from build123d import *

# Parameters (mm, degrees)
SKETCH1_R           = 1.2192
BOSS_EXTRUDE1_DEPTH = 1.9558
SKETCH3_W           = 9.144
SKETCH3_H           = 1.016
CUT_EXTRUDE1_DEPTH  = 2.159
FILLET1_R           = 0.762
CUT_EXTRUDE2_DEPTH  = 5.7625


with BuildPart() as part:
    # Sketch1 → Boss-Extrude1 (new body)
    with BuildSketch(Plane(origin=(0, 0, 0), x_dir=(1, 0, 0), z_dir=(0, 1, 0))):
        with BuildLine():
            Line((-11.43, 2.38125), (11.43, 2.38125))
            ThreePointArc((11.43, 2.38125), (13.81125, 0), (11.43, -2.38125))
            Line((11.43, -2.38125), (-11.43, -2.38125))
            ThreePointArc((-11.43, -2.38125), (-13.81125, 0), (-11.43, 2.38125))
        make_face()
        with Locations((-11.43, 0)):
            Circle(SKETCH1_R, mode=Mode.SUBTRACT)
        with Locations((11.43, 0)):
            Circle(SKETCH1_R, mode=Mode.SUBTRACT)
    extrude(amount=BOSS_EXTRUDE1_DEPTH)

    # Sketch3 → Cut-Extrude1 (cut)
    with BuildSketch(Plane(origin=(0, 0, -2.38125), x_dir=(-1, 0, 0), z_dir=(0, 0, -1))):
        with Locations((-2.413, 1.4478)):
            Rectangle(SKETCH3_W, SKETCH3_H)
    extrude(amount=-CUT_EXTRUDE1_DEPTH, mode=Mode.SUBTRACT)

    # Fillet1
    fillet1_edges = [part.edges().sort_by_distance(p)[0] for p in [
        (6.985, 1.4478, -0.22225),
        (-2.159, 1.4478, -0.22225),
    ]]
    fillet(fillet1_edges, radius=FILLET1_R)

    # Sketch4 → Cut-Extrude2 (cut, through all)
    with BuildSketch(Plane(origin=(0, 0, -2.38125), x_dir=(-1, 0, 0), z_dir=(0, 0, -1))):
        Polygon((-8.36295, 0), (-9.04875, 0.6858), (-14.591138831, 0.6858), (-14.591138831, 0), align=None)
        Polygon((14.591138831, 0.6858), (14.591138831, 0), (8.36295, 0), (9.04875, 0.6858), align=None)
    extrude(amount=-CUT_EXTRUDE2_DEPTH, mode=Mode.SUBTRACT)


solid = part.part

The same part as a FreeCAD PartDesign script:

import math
import FreeCAD as App
import Part
import Sketcher

V = App.Vector
Q = App.Units.Quantity


def edges_at(feature, points):
    """Names of the edges that pass closest to the given points."""
    edges = feature.Shape.Edges
    near = lambda p: min(range(len(edges)), key=lambda i: edges[i].distToShape(Part.Vertex(*p))[0])
    return sorted({f"Edge{near(p) + 1}" for p in points})


def add_polygon(sketch, points):
    """Adds a closed chain of lines whose ends are joined by coincident constraints."""
    first, n = sketch.GeometryCount, len(points)
    for a, b in zip(points, points[1:] + points[:1]):
        sketch.addGeometry(Part.LineSegment(App.Vector(*a, 0), App.Vector(*b, 0)), False)
    for i in range(n):
        sketch.addConstraint(Sketcher.Constraint("Coincident", first + i, 2, first + (i + 1) % n, 1))

doc = App.newDocument("Part")
params = doc.addObject("Spreadsheet::Sheet", "Params")
for row, (alias, value) in enumerate([
    ("sketch1_diameter", "0.096 in"),
    ("sketch1_width", "0.9 in"),
    ("sketch1_radius", "0.09375 in"),
    ("pad1_length", "0.077 in"),
    ("sketch2_width", "0.36 in"),
    ("sketch2_height", "0.04 in"),
    ("pocket1_length", "0.085 in"),
    ("fillet_radius", "0.03 in"),
    ("sketch3_height", "0.027 in"),
], start=1):
    params.set(f"A{row}", alias)
    params.set(f"B{row}", "=" + value)
    params.setAlias(f"B{row}", alias)

body = doc.addObject("PartDesign::Body", "Body")

sketch1 = body.newObject("Sketcher::SketchObject", "Sketch")
sketch1.AttachmentSupport = (doc.getObject("XZ_Plane"), [""])
sketch1.MapMode = "FlatFace"
sketch1.addGeometry([
    Part.LineSegment(V(11.43, -2.38125, 0), V(-11.43, -2.38125, 0)),
    Part.ArcOfCircle(Part.Circle(V(-11.43, 0, 0), V(0, 0, 1), 2.38125), math.radians(90), math.radians(270)),
    Part.LineSegment(V(-11.43, 2.38125, 0), V(11.43, 2.38125, 0)),
    Part.ArcOfCircle(Part.Circle(V(11.43, 0, 0), V(0, 0, 1), 2.38125), math.radians(-90), math.radians(90)),
    Part.Circle(V(11.43, 0, 0), V(0, 0, 1), 1.2192),
    Part.Circle(V(-11.43, 0, 0), V(0, 0, 1), 1.2192),
], False)
sketch1.addConstraint([
    Sketcher.Constraint("Tangent", 0, 2, 1, 2),
    Sketcher.Constraint("Tangent", 1, 1, 2, 1),
    Sketcher.Constraint("Tangent", 2, 2, 3, 2),
    Sketcher.Constraint("Tangent", 3, 1, 0, 1),
    Sketcher.Constraint("Horizontal", 0),
    Sketcher.Constraint("Horizontal", 2),
    Sketcher.Constraint("Coincident", 4, 3, 3, 3),
    Sketcher.Constraint("Coincident", 5, 3, 1, 3),
    Sketcher.Constraint("Equal", 4, 5),
    Sketcher.Constraint("Symmetric", 1, 3, 3, 3, -1, 1),
    Sketcher.Constraint("Diameter", 4, Q("0.096 in")),
    Sketcher.Constraint("DistanceX", 0, 2, 0, 1, Q("0.9 in")),
    Sketcher.Constraint("Radius", 1, Q("0.09375 in")),
])
sketch1.setExpression("Constraints[10]", "Params.sketch1_diameter")
sketch1.setExpression("Constraints[11]", "Params.sketch1_width")
sketch1.setExpression("Constraints[12]", "Params.sketch1_radius")
pad1 = body.newObject("PartDesign::Pad", "Pad")
pad1.Profile = sketch1
pad1.setExpression("Length", "Params.pad1_length")
pad1.Reversed = True

sketch2 = body.newObject("Sketcher::SketchObject", "Sketch001")
sketch2.AttachmentSupport = (doc.getObject("XY_Plane"), [""])
sketch2.MapMode = "FlatFace"
sketch2.AttachmentOffset = App.Placement(V(0, 0, -0.09375 * 25.4), App.Rotation())
add_polygon(sketch2, [(6.985, 1.9558), (6.985, 0.9398), (-2.159, 0.9398), (-2.159, 1.9558)])
sketch2.addConstraint([
    Sketcher.Constraint("Vertical", 0),
    Sketcher.Constraint("Horizontal", 1),
    Sketcher.Constraint("Vertical", 2),
    Sketcher.Constraint("Horizontal", 3),
    Sketcher.Constraint("DistanceX", 1, 2, 1, 1, Q("0.36 in")),
    Sketcher.Constraint("DistanceY", 0, 2, 0, 1, Q("0.04 in")),
    Sketcher.Constraint("DistanceX", -1, 1, 0, 2, Q("0.275 in")),
    Sketcher.Constraint("DistanceY", -1, 1, 0, 2, Q("0.037 in")),
])
sketch2.setExpression("Constraints[8]", "Params.sketch2_width")
sketch2.setExpression("Constraints[9]", "Params.sketch2_height")
pocket1 = body.newObject("PartDesign::Pocket", "Pocket")
pocket1.Profile = sketch2
pocket1.setExpression("Length", "Params.pocket1_length")
pocket1.Reversed = True
doc.recompute()

fillet = body.newObject("PartDesign::Fillet", "Fillet")
fillet.Base = (pocket1, edges_at(pocket1, [(6.985, 1.448, -0.222), (-2.159, 1.448, -0.222)]))
fillet.setExpression("Radius", "Params.fillet_radius")

sketch3 = body.newObject("Sketcher::SketchObject", "Sketch002")
sketch3.AttachmentSupport = (doc.getObject("XY_Plane"), [""])
sketch3.MapMode = "FlatFace"
sketch3.AttachmentOffset = App.Placement(V(0, 0, -0.09375 * 25.4), App.Rotation())
add_polygon(sketch3, [(8.36295, 0), (9.04875, 0.6858), (14.591139, 0.6858), (14.591139, 0)])
add_polygon(sketch3, [(-14.591139, 0), (-14.591139, 0.6858), (-9.04875, 0.6858), (-8.36295, 0)])
sketch3.addConstraint([
    Sketcher.Constraint("Horizontal", 1),
    Sketcher.Constraint("Vertical", 2),
    Sketcher.Constraint("Horizontal", 3),
    Sketcher.Constraint("Vertical", 4),
    Sketcher.Constraint("Horizontal", 5),
    Sketcher.Constraint("Horizontal", 7),
    Sketcher.Constraint("Symmetric", 3, 2, 6, 2, -1, 1),
    Sketcher.Constraint("Symmetric", 1, 2, 4, 2, -2),
    Sketcher.Constraint("PointOnObject", 2, 2, -1),
    Sketcher.Constraint("Perpendicular", 0, 6),
    Sketcher.Constraint("Equal", 1, 5),
    Sketcher.Constraint("DistanceY", 2, 2, 2, 1, Q("0.027 in")),
    Sketcher.Constraint("DistanceX", 5, 2, 3, 2, Q("0.6855 in")),
    Sketcher.Constraint("DistanceX", 1, 1, 1, 2, 5.542389),
])
sketch3.setExpression("Constraints[19]", "Params.sketch3_height")
pocket2 = body.newObject("PartDesign::Pocket", "Pocket001")
pocket2.Profile = sketch3
pocket2.Type = "ThroughAll"
pocket2.Reversed = True

doc.recompute()
